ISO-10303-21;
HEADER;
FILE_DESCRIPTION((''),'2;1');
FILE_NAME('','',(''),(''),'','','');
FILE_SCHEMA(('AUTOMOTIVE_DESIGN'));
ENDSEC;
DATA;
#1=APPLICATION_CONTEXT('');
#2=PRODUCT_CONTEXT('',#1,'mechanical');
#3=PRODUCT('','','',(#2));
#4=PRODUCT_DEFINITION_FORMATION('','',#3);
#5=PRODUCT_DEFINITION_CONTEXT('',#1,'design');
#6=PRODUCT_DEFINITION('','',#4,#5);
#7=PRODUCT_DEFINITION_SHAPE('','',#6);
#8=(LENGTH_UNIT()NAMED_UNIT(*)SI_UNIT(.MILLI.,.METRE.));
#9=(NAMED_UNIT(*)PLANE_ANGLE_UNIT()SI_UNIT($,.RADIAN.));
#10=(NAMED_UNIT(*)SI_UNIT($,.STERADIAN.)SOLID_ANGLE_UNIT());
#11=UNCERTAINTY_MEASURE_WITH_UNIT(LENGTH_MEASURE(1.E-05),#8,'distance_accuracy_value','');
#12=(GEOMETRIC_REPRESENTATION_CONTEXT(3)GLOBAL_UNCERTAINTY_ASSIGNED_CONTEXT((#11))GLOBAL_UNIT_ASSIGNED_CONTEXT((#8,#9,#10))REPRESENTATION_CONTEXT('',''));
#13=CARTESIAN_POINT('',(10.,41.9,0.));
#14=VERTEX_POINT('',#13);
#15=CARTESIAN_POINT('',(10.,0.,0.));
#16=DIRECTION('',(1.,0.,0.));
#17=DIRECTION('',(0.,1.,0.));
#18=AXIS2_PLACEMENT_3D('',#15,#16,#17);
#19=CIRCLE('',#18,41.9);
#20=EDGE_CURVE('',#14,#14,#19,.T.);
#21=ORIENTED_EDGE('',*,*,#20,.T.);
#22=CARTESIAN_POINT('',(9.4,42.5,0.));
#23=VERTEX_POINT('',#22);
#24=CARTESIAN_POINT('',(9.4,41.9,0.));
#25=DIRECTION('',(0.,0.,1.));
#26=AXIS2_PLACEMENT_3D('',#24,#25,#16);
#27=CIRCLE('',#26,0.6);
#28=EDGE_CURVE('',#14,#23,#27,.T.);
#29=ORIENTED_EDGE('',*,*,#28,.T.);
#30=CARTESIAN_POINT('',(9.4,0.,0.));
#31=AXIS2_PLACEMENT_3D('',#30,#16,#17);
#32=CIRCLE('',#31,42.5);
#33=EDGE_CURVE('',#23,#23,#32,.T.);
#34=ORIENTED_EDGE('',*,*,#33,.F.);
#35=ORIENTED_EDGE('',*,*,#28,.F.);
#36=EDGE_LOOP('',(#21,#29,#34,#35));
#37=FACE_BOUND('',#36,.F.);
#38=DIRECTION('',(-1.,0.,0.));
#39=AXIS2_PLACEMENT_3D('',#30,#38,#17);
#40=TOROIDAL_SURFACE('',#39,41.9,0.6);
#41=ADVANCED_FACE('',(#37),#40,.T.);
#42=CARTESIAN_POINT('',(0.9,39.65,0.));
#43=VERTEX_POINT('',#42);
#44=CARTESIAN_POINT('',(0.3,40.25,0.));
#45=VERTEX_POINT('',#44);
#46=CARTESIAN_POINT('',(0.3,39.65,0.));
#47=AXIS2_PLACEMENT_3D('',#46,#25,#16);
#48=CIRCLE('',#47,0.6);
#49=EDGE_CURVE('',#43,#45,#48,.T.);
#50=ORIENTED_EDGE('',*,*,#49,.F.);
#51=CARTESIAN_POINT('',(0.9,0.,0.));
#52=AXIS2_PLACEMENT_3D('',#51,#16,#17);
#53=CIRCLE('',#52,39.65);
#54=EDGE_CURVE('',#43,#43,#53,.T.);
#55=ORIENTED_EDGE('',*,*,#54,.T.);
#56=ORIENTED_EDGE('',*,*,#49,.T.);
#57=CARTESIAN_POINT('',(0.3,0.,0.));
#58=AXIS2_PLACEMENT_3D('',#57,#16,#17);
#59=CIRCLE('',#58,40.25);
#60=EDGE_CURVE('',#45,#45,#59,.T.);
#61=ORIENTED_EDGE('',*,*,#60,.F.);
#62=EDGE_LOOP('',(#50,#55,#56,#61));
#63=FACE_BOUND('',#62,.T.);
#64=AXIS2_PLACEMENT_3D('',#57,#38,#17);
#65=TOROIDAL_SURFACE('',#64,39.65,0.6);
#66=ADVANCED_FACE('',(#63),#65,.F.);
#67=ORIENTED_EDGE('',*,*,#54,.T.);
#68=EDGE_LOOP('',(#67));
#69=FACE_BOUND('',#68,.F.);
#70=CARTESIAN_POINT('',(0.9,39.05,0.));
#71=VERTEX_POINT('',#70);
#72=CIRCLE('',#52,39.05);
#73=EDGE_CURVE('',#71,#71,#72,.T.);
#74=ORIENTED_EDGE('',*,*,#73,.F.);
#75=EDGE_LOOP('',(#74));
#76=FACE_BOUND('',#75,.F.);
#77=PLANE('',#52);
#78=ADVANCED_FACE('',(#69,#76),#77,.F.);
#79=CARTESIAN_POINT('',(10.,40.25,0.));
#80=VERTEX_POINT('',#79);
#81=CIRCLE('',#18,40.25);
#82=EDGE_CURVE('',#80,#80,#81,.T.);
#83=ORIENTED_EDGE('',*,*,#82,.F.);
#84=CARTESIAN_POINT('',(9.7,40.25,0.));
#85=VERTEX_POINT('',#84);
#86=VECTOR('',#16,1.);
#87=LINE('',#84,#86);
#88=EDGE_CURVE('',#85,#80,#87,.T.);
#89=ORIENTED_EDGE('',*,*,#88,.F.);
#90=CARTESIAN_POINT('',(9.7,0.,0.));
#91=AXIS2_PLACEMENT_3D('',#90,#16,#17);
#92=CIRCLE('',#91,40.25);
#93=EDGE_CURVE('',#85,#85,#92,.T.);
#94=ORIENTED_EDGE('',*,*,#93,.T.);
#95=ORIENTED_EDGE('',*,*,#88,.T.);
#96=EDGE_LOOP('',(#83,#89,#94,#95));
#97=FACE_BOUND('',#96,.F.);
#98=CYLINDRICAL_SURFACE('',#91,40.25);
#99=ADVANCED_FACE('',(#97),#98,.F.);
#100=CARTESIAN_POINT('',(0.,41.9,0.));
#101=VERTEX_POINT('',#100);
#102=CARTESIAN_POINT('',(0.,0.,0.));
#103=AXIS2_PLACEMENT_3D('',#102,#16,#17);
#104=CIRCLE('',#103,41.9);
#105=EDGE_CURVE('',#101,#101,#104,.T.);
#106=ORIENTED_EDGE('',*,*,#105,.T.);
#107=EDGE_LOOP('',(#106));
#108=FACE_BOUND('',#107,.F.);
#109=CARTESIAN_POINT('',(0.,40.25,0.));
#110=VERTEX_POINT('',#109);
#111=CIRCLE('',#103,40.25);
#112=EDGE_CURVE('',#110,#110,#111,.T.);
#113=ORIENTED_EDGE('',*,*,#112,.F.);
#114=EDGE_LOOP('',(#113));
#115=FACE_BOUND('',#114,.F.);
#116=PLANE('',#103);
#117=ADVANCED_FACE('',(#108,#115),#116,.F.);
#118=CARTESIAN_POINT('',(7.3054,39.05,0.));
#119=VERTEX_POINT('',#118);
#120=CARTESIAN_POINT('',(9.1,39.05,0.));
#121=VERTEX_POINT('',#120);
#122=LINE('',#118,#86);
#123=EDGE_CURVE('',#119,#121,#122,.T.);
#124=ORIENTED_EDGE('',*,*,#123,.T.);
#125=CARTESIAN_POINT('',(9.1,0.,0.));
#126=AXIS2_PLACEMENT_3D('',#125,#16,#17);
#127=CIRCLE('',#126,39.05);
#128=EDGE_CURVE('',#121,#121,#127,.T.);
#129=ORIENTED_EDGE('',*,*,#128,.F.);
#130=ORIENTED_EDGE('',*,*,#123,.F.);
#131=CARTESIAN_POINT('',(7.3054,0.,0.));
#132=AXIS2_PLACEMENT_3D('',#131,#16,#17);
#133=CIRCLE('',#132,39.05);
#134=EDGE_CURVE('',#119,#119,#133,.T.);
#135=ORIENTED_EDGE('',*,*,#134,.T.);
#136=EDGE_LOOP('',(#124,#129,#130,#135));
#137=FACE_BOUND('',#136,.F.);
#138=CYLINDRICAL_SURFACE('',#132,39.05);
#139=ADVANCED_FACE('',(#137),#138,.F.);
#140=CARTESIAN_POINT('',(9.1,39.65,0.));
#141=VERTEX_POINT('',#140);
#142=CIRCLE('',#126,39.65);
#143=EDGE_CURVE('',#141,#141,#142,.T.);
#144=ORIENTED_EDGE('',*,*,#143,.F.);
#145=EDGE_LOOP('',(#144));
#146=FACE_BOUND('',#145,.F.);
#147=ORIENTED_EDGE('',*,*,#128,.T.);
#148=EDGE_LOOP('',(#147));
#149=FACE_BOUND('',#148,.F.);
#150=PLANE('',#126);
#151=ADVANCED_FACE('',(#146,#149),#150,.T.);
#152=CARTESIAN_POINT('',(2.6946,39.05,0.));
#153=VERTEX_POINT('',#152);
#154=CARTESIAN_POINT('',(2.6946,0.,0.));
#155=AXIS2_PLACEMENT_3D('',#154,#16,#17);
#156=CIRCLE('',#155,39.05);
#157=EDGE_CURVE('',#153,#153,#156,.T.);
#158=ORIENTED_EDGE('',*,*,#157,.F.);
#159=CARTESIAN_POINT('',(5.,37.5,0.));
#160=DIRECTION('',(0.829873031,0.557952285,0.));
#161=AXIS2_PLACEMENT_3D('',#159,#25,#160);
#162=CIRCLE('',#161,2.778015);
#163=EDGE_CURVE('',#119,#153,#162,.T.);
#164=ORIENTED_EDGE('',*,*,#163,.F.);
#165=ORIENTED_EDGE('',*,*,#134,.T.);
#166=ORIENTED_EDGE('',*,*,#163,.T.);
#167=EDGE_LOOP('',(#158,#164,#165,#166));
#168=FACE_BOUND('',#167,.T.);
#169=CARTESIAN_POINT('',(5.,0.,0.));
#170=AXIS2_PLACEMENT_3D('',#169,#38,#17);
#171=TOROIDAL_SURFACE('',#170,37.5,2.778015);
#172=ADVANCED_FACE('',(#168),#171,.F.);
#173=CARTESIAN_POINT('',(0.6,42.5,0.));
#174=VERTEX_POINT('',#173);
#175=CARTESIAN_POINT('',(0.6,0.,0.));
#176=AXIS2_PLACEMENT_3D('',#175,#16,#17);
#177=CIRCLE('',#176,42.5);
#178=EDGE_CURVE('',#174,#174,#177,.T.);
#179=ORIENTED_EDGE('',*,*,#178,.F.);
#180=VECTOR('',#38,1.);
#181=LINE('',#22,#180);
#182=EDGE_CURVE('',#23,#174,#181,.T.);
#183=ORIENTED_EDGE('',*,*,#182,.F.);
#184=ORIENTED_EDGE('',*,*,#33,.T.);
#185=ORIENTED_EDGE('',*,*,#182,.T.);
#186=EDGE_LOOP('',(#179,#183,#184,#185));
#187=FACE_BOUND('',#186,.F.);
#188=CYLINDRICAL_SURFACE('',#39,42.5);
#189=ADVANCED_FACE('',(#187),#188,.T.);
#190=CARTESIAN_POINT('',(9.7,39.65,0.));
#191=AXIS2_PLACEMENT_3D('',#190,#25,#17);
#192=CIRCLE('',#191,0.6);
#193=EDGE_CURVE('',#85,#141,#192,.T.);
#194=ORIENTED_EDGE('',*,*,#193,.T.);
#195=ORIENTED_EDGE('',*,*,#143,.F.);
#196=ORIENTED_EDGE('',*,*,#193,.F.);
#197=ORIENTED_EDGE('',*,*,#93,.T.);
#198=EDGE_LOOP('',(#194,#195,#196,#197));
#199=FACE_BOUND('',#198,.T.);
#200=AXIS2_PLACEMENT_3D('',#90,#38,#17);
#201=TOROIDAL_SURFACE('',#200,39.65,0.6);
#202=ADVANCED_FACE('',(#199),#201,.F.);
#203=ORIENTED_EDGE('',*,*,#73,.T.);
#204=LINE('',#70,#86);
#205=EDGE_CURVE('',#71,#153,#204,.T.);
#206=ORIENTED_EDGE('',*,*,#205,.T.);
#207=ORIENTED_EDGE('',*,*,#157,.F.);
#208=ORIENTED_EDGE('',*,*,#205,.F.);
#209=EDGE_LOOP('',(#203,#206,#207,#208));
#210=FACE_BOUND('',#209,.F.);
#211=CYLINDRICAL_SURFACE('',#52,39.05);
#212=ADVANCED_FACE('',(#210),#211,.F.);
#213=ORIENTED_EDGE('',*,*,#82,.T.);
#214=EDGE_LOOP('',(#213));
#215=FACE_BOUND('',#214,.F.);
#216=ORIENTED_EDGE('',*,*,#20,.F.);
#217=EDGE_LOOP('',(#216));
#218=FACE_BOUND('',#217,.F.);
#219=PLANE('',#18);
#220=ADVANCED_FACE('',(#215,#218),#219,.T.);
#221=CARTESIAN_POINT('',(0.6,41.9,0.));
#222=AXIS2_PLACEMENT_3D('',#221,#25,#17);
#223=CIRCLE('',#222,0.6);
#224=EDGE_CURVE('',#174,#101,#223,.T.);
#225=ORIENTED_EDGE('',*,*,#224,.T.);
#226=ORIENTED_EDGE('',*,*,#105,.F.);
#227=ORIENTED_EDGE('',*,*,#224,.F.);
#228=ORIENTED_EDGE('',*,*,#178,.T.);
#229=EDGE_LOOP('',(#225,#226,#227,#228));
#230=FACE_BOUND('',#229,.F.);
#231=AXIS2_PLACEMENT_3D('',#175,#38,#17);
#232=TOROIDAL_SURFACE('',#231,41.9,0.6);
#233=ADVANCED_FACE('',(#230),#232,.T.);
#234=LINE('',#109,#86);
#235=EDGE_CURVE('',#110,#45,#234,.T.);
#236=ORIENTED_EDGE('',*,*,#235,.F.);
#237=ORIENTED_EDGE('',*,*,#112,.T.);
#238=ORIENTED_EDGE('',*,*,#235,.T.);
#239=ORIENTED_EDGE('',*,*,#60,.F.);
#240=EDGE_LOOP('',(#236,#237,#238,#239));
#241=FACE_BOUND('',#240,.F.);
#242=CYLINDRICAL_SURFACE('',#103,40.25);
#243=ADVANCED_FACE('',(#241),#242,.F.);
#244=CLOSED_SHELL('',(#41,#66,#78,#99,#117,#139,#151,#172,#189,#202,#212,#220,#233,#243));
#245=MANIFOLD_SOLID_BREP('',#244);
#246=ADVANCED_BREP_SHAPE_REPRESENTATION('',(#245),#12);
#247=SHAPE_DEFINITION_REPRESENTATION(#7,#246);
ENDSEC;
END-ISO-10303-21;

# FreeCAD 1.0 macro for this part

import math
import FreeCAD as App
import Part
import Sketcher
from FreeCAD import Vector

doc = App.newDocument("Part")
params = doc.addObject("Spreadsheet::Sheet", "Params")
for row, (alias, value) in enumerate([
    ("sketch1_radius", "0.6 mm"),
    ("sketch1_width", "0.3 mm"),
    ("sketch1_width2", "8.8 mm"),
    ("sketch1_height", "0.6 mm"),
    ("sketch1_height2", "1.65 mm"),
    ("revolution_angle", "360 deg"),
], start=1):
    params.set(f"A{row}", alias)
    params.set(f"B{row}", "=" + value)
    params.setAlias(f"B{row}", alias)

body = doc.addObject("PartDesign::Body", "Body")

sketch1 = body.newObject("Sketcher::SketchObject", "Sketch")
sketch1.AttachmentSupport = (doc.getObject("XY_Plane"), [""])
sketch1.MapMode = "FlatFace"
sketch1.addGeometry([
    Part.ArcOfCircle(Part.Circle(Vector(0.6, 41.9, 0), Vector(0, 0, 1), 0.6), math.radians(90), math.radians(180)),
    Part.LineSegment(Vector(0, 41.9, 0), Vector(0, 40.25, 0)),
    Part.LineSegment(Vector(0, 40.25, 0), Vector(0.3, 40.25, 0)),
    Part.ArcOfCircle(Part.Circle(Vector(0.3, 39.65, 0), Vector(0, 0, 1), 0.6), math.radians(0), math.radians(90)),
    Part.LineSegment(Vector(0.9, 39.65, 0), Vector(0.9, 39.05, 0)),
    Part.LineSegment(Vector(0.9, 39.05, 0), Vector(2.69, 39.05, 0)),
    Part.ArcOfCircle(Part.Circle(Vector(5, 37.5, 0), Vector(0, 0, 1), 2.78), math.radians(34), math.radians(146)),
    Part.LineSegment(Vector(7.31, 39.05, 0), Vector(9.1, 39.05, 0)),
    Part.LineSegment(Vector(9.1, 39.05, 0), Vector(9.1, 39.65, 0)),
    Part.ArcOfCircle(Part.Circle(Vector(9.7, 39.65, 0), Vector(0, 0, 1), 0.6), math.radians(90), math.radians(180)),
    Part.LineSegment(Vector(9.7, 40.25, 0), Vector(10, 40.25, 0)),
    Part.LineSegment(Vector(10, 40.25, 0), Vector(10, 41.9, 0)),
    Part.ArcOfCircle(Part.Circle(Vector(9.4, 41.9, 0), Vector(0, 0, 1), 0.6), math.radians(0), math.radians(90)),
    Part.LineSegment(Vector(9.4, 42.5, 0), Vector(0.6, 42.5, 0)),
], False)
sketch1.addConstraint([
    Sketcher.Constraint("Tangent", 0, 2, 1, 1),
    Sketcher.Constraint("Coincident", 1, 2, 2, 1),
    Sketcher.Constraint("Tangent", 2, 2, 3, 2),
    Sketcher.Constraint("Tangent", 3, 1, 4, 1),
    Sketcher.Constraint("Coincident", 4, 2, 5, 1),
    Sketcher.Constraint("Coincident", 5, 2, 6, 2),
    Sketcher.Constraint("Coincident", 6, 1, 7, 1),
    Sketcher.Constraint("Coincident", 7, 2, 8, 1),
    Sketcher.Constraint("Tangent", 8, 2, 9, 2),
    Sketcher.Constraint("Tangent", 9, 1, 10, 1),
    Sketcher.Constraint("Coincident", 10, 2, 11, 1),
    Sketcher.Constraint("Tangent", 11, 2, 12, 1),
    Sketcher.Constraint("Tangent", 12, 2, 13, 1),
    Sketcher.Constraint("Tangent", 13, 2, 0, 1),
    Sketcher.Constraint("Vertical", 1),
    Sketcher.Constraint("Horizontal", 2),
    Sketcher.Constraint("Vertical", 4),
    Sketcher.Constraint("Horizontal", 5),
    Sketcher.Constraint("Horizontal", 7),
    Sketcher.Constraint("Vertical", 8),
    Sketcher.Constraint("Horizontal", 10),
    Sketcher.Constraint("Vertical", 11),
    Sketcher.Constraint("Horizontal", 13),
    Sketcher.Constraint("Equal", 0, 3),
    Sketcher.Constraint("Equal", 3, 9),
    Sketcher.Constraint("Equal", 9, 12),
    Sketcher.Constraint("PointOnObject", 0, 2, -2),
    Sketcher.Constraint("Horizontal", 3, 3, 9, 3),
    Sketcher.Constraint("Horizontal", 5, 2, 6, 1),
    Sketcher.Constraint("Equal", 5, 7),
    Sketcher.Constraint("Equal", 2, 10),
    Sketcher.Constraint("Radius", 0, 0.6),
    Sketcher.Constraint("DistanceX", 2, 1, 2, 2, 0.3),
    Sketcher.Constraint("DistanceX", 13, 2, 13, 1, 8.8),
    Sketcher.Constraint("DistanceY", 4, 2, 4, 1, 0.6),
    Sketcher.Constraint("Radius", 6, 2.778),
    Sketcher.Constraint("DistanceY", 1, 2, 1, 1, 1.65),
    Sketcher.Constraint("DistanceY", -1, 1, 0, 3, 41.9),
    Sketcher.Constraint("DistanceY", -1, 1, 6, 3, 37.5),
])
sketch1.setExpression("Constraints[31]", "Params.sketch1_radius")
sketch1.setExpression("Constraints[32]", "Params.sketch1_width")
sketch1.setExpression("Constraints[33]", "Params.sketch1_width2")
sketch1.setExpression("Constraints[34]", "Params.sketch1_height")
sketch1.setExpression("Constraints[36]", "Params.sketch1_height2")
revolution = body.newObject("PartDesign::Revolution", "Revolution")
revolution.Profile = sketch1
revolution.ReferenceAxis = (sketch1, ["H_Axis"])
revolution.setExpression("Angle", "Params.revolution_angle")

doc.recompute()
